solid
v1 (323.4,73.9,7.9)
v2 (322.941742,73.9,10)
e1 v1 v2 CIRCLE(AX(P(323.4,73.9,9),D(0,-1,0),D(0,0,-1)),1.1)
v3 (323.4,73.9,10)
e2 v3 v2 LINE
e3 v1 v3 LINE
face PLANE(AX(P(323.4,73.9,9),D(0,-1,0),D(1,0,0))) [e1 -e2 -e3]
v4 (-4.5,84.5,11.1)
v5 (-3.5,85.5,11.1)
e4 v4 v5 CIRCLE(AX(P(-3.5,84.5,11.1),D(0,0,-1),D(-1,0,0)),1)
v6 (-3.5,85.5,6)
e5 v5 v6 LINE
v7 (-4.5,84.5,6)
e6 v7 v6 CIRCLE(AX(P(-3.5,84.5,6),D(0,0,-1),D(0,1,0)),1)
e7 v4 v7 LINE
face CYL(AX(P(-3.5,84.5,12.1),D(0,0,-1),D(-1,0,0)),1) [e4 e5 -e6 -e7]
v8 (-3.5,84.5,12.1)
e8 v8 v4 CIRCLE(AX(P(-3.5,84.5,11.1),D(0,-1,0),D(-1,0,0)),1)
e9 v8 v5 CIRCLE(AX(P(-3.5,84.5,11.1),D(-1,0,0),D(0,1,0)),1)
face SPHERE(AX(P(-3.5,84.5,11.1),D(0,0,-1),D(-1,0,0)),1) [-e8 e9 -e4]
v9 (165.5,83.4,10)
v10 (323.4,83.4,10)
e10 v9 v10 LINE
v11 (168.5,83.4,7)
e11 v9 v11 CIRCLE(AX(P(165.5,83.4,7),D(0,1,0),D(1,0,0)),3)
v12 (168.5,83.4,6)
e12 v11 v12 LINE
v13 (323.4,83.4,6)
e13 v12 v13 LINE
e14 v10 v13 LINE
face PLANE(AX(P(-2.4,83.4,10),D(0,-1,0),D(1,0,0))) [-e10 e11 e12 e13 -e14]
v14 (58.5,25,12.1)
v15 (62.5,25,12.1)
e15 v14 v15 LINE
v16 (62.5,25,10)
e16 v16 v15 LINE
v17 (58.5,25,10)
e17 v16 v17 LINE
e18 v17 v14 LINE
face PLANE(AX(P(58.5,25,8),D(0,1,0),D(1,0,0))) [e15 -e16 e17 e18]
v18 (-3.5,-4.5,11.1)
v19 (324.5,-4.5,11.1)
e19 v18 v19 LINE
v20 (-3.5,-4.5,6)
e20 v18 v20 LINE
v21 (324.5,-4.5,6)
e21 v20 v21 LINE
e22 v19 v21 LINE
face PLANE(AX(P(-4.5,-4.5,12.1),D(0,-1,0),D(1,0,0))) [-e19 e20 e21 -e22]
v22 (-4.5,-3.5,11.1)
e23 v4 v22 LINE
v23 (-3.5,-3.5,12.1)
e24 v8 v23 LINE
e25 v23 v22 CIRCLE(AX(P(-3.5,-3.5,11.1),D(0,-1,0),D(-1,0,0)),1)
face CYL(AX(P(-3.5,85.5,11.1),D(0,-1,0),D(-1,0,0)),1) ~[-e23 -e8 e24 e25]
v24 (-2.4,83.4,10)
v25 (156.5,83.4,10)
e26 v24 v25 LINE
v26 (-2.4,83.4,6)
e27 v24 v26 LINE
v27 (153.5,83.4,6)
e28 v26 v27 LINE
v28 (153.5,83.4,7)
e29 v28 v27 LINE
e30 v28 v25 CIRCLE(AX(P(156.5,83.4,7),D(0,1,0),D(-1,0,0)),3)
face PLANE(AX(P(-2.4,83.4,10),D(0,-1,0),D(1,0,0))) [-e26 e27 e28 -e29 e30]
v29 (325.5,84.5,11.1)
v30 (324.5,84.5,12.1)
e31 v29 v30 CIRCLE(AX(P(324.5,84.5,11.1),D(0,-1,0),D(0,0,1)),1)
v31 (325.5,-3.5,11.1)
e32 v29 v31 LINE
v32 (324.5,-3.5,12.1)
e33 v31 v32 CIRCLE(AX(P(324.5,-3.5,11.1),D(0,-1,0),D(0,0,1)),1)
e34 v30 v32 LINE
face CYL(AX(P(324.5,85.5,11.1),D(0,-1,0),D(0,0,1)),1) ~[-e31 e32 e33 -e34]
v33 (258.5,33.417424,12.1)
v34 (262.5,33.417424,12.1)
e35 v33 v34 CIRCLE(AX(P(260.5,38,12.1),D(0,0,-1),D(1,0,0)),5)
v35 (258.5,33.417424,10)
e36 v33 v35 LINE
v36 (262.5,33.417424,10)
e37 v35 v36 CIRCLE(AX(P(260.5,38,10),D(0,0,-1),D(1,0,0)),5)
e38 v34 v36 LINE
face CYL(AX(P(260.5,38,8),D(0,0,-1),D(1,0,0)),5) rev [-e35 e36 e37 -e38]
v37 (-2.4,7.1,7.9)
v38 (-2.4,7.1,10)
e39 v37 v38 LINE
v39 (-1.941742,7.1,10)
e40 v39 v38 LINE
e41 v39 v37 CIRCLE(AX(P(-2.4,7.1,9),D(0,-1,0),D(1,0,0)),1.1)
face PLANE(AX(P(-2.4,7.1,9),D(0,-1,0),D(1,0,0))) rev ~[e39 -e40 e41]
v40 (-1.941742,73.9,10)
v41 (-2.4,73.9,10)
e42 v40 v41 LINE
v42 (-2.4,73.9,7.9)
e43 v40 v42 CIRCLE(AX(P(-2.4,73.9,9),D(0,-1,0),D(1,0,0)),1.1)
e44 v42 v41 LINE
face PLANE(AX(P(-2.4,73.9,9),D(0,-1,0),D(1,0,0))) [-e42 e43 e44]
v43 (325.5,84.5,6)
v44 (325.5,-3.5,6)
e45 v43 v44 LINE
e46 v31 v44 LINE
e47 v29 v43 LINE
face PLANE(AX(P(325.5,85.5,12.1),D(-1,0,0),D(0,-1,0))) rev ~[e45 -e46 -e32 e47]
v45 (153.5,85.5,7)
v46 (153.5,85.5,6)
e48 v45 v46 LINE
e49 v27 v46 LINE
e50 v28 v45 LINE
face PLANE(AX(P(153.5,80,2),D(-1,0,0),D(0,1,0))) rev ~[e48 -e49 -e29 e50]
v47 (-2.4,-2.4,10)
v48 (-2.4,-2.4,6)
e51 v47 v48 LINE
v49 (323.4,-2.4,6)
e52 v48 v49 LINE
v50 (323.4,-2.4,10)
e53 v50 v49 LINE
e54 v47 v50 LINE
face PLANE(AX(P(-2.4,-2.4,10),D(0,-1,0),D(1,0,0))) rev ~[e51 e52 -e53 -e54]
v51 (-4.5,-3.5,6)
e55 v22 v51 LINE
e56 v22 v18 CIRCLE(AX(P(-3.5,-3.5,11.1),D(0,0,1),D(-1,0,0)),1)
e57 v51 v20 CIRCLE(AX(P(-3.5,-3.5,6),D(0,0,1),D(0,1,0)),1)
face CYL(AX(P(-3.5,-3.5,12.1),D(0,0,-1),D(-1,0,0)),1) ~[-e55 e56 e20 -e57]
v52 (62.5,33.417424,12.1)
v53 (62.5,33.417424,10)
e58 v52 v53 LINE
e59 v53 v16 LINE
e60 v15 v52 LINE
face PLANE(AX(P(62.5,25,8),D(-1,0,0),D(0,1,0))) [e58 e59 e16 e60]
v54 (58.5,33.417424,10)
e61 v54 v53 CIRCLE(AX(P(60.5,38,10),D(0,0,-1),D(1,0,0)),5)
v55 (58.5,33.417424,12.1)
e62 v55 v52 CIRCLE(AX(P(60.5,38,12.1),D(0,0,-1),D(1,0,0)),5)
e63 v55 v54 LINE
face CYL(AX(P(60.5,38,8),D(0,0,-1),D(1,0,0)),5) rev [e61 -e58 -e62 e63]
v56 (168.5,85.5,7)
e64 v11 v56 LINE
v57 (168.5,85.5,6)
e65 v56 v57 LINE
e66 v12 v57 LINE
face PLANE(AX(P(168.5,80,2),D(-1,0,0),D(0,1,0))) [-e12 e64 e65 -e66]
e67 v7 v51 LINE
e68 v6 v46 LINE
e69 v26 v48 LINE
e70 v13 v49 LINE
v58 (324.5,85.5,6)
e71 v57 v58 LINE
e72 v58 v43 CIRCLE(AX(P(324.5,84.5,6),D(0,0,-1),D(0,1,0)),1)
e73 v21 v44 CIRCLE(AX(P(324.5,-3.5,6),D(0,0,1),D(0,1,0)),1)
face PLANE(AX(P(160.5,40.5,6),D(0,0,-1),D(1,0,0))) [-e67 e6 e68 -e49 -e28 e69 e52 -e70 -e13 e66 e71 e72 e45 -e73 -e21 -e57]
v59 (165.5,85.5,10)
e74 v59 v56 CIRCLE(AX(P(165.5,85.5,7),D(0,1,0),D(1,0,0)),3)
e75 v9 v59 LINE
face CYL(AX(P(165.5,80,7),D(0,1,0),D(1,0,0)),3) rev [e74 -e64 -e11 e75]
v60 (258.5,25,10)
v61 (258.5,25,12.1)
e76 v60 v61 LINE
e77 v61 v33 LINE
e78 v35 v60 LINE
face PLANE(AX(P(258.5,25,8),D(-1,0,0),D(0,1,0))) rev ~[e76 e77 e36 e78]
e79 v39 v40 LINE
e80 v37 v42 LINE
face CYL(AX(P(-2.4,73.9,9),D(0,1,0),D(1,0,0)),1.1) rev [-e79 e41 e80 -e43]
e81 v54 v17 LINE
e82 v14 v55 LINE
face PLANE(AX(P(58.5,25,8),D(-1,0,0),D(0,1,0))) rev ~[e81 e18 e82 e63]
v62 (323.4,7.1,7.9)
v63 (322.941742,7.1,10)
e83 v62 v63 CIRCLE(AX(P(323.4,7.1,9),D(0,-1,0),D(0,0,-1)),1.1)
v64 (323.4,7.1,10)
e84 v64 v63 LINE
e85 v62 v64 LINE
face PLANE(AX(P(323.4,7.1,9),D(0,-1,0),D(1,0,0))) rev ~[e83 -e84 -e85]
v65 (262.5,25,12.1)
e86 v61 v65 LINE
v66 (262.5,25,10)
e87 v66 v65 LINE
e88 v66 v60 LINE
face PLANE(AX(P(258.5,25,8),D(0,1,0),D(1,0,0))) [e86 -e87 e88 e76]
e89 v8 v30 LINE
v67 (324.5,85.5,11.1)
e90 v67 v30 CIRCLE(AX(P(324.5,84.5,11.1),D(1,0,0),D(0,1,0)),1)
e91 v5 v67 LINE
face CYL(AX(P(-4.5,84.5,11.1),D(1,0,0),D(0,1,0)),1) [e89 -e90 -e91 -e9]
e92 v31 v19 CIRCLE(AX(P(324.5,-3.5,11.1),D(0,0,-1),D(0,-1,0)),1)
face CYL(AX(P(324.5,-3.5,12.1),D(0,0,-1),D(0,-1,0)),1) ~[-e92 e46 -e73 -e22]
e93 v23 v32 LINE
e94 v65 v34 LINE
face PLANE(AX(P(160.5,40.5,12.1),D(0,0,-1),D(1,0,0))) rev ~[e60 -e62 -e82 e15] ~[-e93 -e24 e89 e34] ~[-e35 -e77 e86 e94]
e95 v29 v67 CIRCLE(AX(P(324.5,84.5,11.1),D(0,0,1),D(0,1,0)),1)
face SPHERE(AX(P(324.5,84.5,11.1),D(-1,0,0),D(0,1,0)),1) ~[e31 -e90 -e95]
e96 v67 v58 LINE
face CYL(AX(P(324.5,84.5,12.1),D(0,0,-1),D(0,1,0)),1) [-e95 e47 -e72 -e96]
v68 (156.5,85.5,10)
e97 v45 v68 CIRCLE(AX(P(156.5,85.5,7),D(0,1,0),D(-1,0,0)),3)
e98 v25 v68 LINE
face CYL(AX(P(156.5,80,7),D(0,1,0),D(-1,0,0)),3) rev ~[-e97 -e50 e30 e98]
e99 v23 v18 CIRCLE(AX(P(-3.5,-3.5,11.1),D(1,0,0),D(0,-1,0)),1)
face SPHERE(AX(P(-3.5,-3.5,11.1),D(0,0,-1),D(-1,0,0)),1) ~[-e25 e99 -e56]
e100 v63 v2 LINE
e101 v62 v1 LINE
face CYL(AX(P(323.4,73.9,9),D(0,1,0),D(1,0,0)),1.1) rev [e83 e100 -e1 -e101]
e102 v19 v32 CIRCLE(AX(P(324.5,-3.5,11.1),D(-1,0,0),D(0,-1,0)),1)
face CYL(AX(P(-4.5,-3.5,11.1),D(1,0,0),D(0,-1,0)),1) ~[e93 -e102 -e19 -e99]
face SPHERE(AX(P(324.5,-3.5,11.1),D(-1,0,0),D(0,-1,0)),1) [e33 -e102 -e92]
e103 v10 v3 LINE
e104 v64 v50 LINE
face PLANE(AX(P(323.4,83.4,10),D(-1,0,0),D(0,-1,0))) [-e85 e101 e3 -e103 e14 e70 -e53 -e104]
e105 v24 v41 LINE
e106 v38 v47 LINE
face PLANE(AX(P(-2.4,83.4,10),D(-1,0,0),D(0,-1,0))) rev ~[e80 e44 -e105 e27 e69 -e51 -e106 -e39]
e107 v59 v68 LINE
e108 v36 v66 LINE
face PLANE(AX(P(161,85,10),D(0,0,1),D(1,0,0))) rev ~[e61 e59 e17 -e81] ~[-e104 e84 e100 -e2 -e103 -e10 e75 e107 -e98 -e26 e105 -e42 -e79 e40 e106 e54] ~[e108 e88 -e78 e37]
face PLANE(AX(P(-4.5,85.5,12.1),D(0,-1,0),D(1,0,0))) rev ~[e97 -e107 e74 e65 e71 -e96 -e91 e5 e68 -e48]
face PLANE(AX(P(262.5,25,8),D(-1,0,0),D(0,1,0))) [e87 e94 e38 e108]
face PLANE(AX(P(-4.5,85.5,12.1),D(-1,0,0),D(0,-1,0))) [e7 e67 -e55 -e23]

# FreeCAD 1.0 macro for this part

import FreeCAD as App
import Part
import Sketcher
from FreeCAD import Vector


def edges_at(feature, points):
    """Names of the edges that pass closest to the given points."""
    edges = feature.Shape.Edges
    near = lambda p: min(range(len(edges)), key=lambda i: edges[i].distToShape(Part.Vertex(*p))[0])
    return sorted({f"Edge{near(p) + 1}" for p in points})


def add_polygon(sketch, points):
    """Adds a closed chain of lines whose ends are joined by coincident constraints."""
    first, n = sketch.GeometryCount, len(points)
    for a, b in zip(points, points[1:] + points[:1]):
        sketch.addGeometry(Part.LineSegment(App.Vector(*a, 0), App.Vector(*b, 0)), False)
    for i in range(n):
        sketch.addConstraint(Sketcher.Constraint("Coincident", first + i, 2, first + (i + 1) % n, 1))

doc = App.newDocument("Part")
params = doc.addObject("Spreadsheet::Sheet", "Params")
for row, (alias, value) in enumerate([
    ("sketch1_width", "4 mm"),
    ("sketch1_height", "10 mm"),
    ("pad1_length", "10 mm"),
    ("sketch2_diameter", "10 mm"),
    ("pad2_length", "10 mm"),
    ("sketch3_width", "4 mm"),
    ("sketch3_height", "10 mm"),
    ("pad3_length", "10 mm"),
    ("sketch4_diameter", "10 mm"),
    ("pad4_length", "10 mm"),
    ("sketch5_width", "15 mm"),
    ("sketch5_height", "10 mm"),
    ("pad5_length", "8 mm"),
    ("fillet_radius", "3 mm"),
    ("sketch6_diameter", "2.2 mm"),
    ("pad6_length", "66.8 mm"),
    ("sketch7_diameter", "2.2 mm"),
    ("pad7_length", "66.8 mm"),
    ("sketch8_width", "325.8 mm"),
    ("sketch8_height", "85.8 mm"),
    ("pad8_length", "4 mm"),
    ("sketch9_width", "330 mm"),
    ("sketch9_height", "90 mm"),
    ("pad9_length", "6.1 mm"),
    ("fillet2_radius", "1 mm"),
], start=1):
    params.set(f"A{row}", alias)
    params.set(f"B{row}", "=" + value)
    params.setAlias(f"B{row}", alias)

body = doc.addObject("PartDesign::Body", "Body")

sketch1 = body.newObject("Sketcher::SketchObject", "Sketch")
sketch1.AttachmentSupport = (doc.getObject("XY_Plane"), [""])
sketch1.MapMode = "FlatFace"
add_polygon(sketch1, [(0, 10), (0, 0), (4, 0), (4, 10)])
sketch1.addConstraint([
    Sketcher.Constraint("Vertical", 0),
    Sketcher.Constraint("Horizontal", 1),
    Sketcher.Constraint("Vertical", 2),
    Sketcher.Constraint("Horizontal", 3),
    Sketcher.Constraint("Coincident", 0, 2, -1, 1),
    Sketcher.Constraint("DistanceX", 1, 1, 1, 2, 4.0),
    Sketcher.Constraint("DistanceY", 0, 2, 0, 1, 10.0),
])
sketch1.setExpression("Constraints[9]", "Params.sketch1_width")
sketch1.setExpression("Constraints[10]", "Params.sketch1_height")
pad1 = body.newObject("PartDesign::Pad", "Pad")
pad1.Profile = sketch1
pad1.setExpression("Length", "Params.pad1_length")
body2 = doc.addObject("PartDesign::Body", "Body001")

sketch2 = body2.newObject("Sketcher::SketchObject", "Sketch001")
sketch2.AttachmentSupport = (doc.getObject("XY_Plane001"), [""])
sketch2.MapMode = "FlatFace"
sketch2.addGeometry(Part.Circle(Vector(2, 13, 0), Vector(0, 0, 1), 5), False)
sketch2.addConstraint([
    Sketcher.Constraint("Diameter", 0, 10.0),
    Sketcher.Constraint("DistanceX", -1, 1, 0, 3, 2.0),
    Sketcher.Constraint("DistanceY", -1, 1, 0, 3, 13.0),
])
sketch2.setExpression("Constraints[0]", "Params.sketch2_diameter")
pad2 = body2.newObject("PartDesign::Pad", "Pad001")
pad2.Profile = sketch2
pad2.setExpression("Length", "Params.pad2_length")
doc.recompute()

boolean = body2.newObject("PartDesign::Boolean", "Boolean")
boolean.Type = "Fuse"
boolean.addObjects([body])
body3 = doc.addObject("PartDesign::Body", "Body002")
doc.recompute()

body2.Placement = App.Placement(Vector(258.5, 25, 8), App.Rotation(Vector(0, 0, 1), 0))
boolean2 = body3.newObject("PartDesign::Boolean", "Boolean001")
boolean2.Type = "Fuse"
boolean2.addObjects([body2])
body4 = doc.addObject("PartDesign::Body", "Body003")

sketch3 = body4.newObject("Sketcher::SketchObject", "Sketch002")
sketch3.AttachmentSupport = (doc.getObject("XY_Plane003"), [""])
sketch3.MapMode = "FlatFace"
add_polygon(sketch3, [(0, 10), (0, 0), (4, 0), (4, 10)])
sketch3.addConstraint([
    Sketcher.Constraint("Vertical", 0),
    Sketcher.Constraint("Horizontal", 1),
    Sketcher.Constraint("Vertical", 2),
    Sketcher.Constraint("Horizontal", 3),
    Sketcher.Constraint("Coincident", 0, 2, -1, 1),
    Sketcher.Constraint("DistanceX", 1, 1, 1, 2, 4.0),
    Sketcher.Constraint("DistanceY", 0, 2, 0, 1, 10.0),
])
sketch3.setExpression("Constraints[9]", "Params.sketch3_width")
sketch3.setExpression("Constraints[10]", "Params.sketch3_height")
pad3 = body4.newObject("PartDesign::Pad", "Pad002")
pad3.Profile = sketch3
pad3.setExpression("Length", "Params.pad3_length")
body5 = doc.addObject("PartDesign::Body", "Body004")

sketch4 = body5.newObject("Sketcher::SketchObject", "Sketch003")
sketch4.AttachmentSupport = (doc.getObject("XY_Plane004"), [""])
sketch4.MapMode = "FlatFace"
sketch4.addGeometry(Part.Circle(Vector(2, 13, 0), Vector(0, 0, 1), 5), False)
sketch4.addConstraint([
    Sketcher.Constraint("Diameter", 0, 10.0),
    Sketcher.Constraint("DistanceX", -1, 1, 0, 3, 2.0),
    Sketcher.Constraint("DistanceY", -1, 1, 0, 3, 13.0),
])
sketch4.setExpression("Constraints[0]", "Params.sketch4_diameter")
pad4 = body5.newObject("PartDesign::Pad", "Pad003")
pad4.Profile = sketch4
pad4.setExpression("Length", "Params.pad4_length")
doc.recompute()

boolean3 = body5.newObject("PartDesign::Boolean", "Boolean002")
boolean3.Type = "Fuse"
boolean3.addObjects([body4])
body6 = doc.addObject("PartDesign::Body", "Body005")
doc.recompute()

body5.Placement = App.Placement(Vector(58.5, 25, 8), App.Rotation(Vector(0, 0, 1), 0))
boolean4 = body6.newObject("PartDesign::Boolean", "Boolean003")
boolean4.Type = "Fuse"
boolean4.addObjects([body5])
body7 = doc.addObject("PartDesign::Body", "Body006")

sketch5 = body7.newObject("Sketcher::SketchObject", "Sketch004")
sketch5.AttachmentSupport = (doc.getObject("XY_Plane006"), [""])
sketch5.MapMode = "FlatFace"
sketch5.AttachmentOffset = App.Placement(Vector(0, 0, 2), App.Rotation())
add_polygon(sketch5, [(154, 90), (154, 80), (168, 80), (168, 90)])
sketch5.addConstraint([
    Sketcher.Constraint("Vertical", 0),
    Sketcher.Constraint("Horizontal", 1),
    Sketcher.Constraint("Vertical", 2),
    Sketcher.Constraint("Horizontal", 3),
    Sketcher.Constraint("DistanceX", 1, 1, 1, 2, 15.0),
    Sketcher.Constraint("DistanceY", 0, 2, 0, 1, 10.0),
    Sketcher.Constraint("DistanceY", -1, 1, 0, 2, 80.0),
    Sketcher.Constraint("DistanceX", -1, 1, 0, 2, 153.5),
])
sketch5.setExpression("Constraints[8]", "Params.sketch5_width")
sketch5.setExpression("Constraints[9]", "Params.sketch5_height")
pad5 = body7.newObject("PartDesign::Pad", "Pad004")
pad5.Profile = sketch5
pad5.setExpression("Length", "Params.pad5_length")
doc.recompute()

fillet = body7.newObject("PartDesign::Fillet", "Fillet")
fillet.Base = (pad5, edges_at(pad5, [
    (153.5, 85, 10),
    (153.5, 85, 2),
    (168.5, 85, 10),
    (168.5, 85, 2),
]))
fillet.setExpression("Radius", "Params.fillet_radius")
body8 = doc.addObject("PartDesign::Body", "Body007")

sketch6 = body8.newObject("Sketcher::SketchObject", "Sketch005")
sketch6.AttachmentSupport = (doc.getObject("XZ_Plane007"), [""])
sketch6.MapMode = "FlatFace"
sketch6.AttachmentOffset = App.Placement(Vector(0, 0, -7.1), App.Rotation())
sketch6.addGeometry(Part.Circle(Vector(-2.4, 1, 0), Vector(0, 0, 1), 1.1), False)
sketch6.addConstraint([
    Sketcher.Constraint("Diameter", 0, 2.2),
    Sketcher.Constraint("DistanceY", -1, 1, 0, 3, 1.0),
    Sketcher.Constraint("DistanceX", 0, 3, -1, 1, 2.4),
])
sketch6.setExpression("Constraints[0]", "Params.sketch6_diameter")
pad6 = body8.newObject("PartDesign::Pad", "Pad005")
pad6.Profile = sketch6
pad6.setExpression("Length", "Params.pad6_length")
pad6.Reversed = True
body9 = doc.addObject("PartDesign::Body", "Body008")

sketch7 = body9.newObject("Sketcher::SketchObject", "Sketch006")
sketch7.AttachmentSupport = (doc.getObject("XZ_Plane008"), [""])
sketch7.MapMode = "FlatFace"
sketch7.AttachmentOffset = App.Placement(Vector(0, 0, -7.1), App.Rotation())
sketch7.addGeometry(Part.Circle(Vector(323.4, 1, 0), Vector(0, 0, 1), 1.1), False)
sketch7.addConstraint([
    Sketcher.Constraint("Diameter", 0, 2.2),
    Sketcher.Constraint("DistanceY", -1, 1, 0, 3, 1.0),
    Sketcher.Constraint("DistanceX", -1, 1, 0, 3, 323.4),
])
sketch7.setExpression("Constraints[0]", "Params.sketch7_diameter")
pad7 = body9.newObject("PartDesign::Pad", "Pad006")
pad7.Profile = sketch7
pad7.setExpression("Length", "Params.pad7_length")
pad7.Reversed = True
body10 = doc.addObject("PartDesign::Body", "Body009")

sketch8 = body10.newObject("Sketcher::SketchObject", "Sketch007")
sketch8.AttachmentSupport = (doc.getObject("XY_Plane009"), [""])
sketch8.MapMode = "FlatFace"
add_polygon(sketch8, [(-2, 83), (-2, -2), (323, -2), (323, 83)])
sketch8.addConstraint([
    Sketcher.Constraint("Vertical", 0),
    Sketcher.Constraint("Horizontal", 1),
    Sketcher.Constraint("Vertical", 2),
    Sketcher.Constraint("Horizontal", 3),
    Sketcher.Constraint("DistanceX", 1, 1, 1, 2, 325.8),
    Sketcher.Constraint("DistanceY", 0, 2, 0, 1, 85.8),
    Sketcher.Constraint("DistanceX", 0, 2, -1, 1, 2.4),
    Sketcher.Constraint("DistanceY", 0, 2, -1, 1, 2.4),
])
sketch8.setExpression("Constraints[8]", "Params.sketch8_width")
sketch8.setExpression("Constraints[9]", "Params.sketch8_height")
pad8 = body10.newObject("PartDesign::Pad", "Pad007")
pad8.Profile = sketch8
pad8.setExpression("Length", "Params.pad8_length")
body11 = doc.addObject("PartDesign::Body", "Body010")

sketch9 = body11.newObject("Sketcher::SketchObject", "Sketch008")
sketch9.AttachmentSupport = (doc.getObject("XY_Plane010"), [""])
sketch9.MapMode = "FlatFace"
sketch9.AttachmentOffset = App.Placement(Vector(0, 0, -2.1), App.Rotation())
add_polygon(sketch9, [(-4, 86), (-4, -4), (326, -4), (326, 86)])
sketch9.addConstraint([
    Sketcher.Constraint("Vertical", 0),
    Sketcher.Constraint("Horizontal", 1),
    Sketcher.Constraint("Vertical", 2),
    Sketcher.Constraint("Horizontal", 3),
    Sketcher.Constraint("DistanceX", 1, 1, 1, 2, 330.0),
    Sketcher.Constraint("DistanceY", 0, 2, 0, 1, 90.0),
    Sketcher.Constraint("DistanceX", 0, 2, -1, 1, 4.5),
    Sketcher.Constraint("DistanceY", 0, 2, -1, 1, 4.5),
])
sketch9.setExpression("Constraints[8]", "Params.sketch9_width")
sketch9.setExpression("Constraints[9]", "Params.sketch9_height")
pad9 = body11.newObject("PartDesign::Pad", "Pad008")
pad9.Profile = sketch9
pad9.setExpression("Length", "Params.pad9_length")
doc.recompute()

boolean5 = body11.newObject("PartDesign::Boolean", "Boolean004")
boolean5.Type = "Cut"
boolean5.addObjects([body10])
doc.recompute()

boolean6 = body11.newObject("PartDesign::Boolean", "Boolean005")
boolean6.Type = "Cut"
boolean6.addObjects([body9])
doc.recompute()

boolean7 = body11.newObject("PartDesign::Boolean", "Boolean006")
boolean7.Type = "Cut"
boolean7.addObjects([body8])
doc.recompute()

fillet2 = body11.newObject("PartDesign::Fillet", "Fillet001")
fillet2.Base = (boolean7, edges_at(boolean7, [
    (-4.5, -4.5, 0.95),
    (-4.5, 85.5, 0.95),
    (-4.5, 40.5, -2.1),
    (160.5, -4.5, -2.1),
    (325.5, -4.5, 0.95),
    (160.5, 85.5, -2.1),
    (325.5, 85.5, 0.95),
    (325.5, 40.5, -2.1),
]))
fillet2.setExpression("Radius", "Params.fillet2_radius")
body12 = doc.addObject("PartDesign::Body", "Body011")
doc.recompute()

body11.Placement = App.Placement(Vector(0, 81, 10), App.Rotation(Vector(1, 0, 0), 180))
boolean8 = body12.newObject("PartDesign::Boolean", "Boolean007")
boolean8.Type = "Fuse"
boolean8.addObjects([body11])
doc.recompute()

boolean9 = body12.newObject("PartDesign::Boolean", "Boolean008")
boolean9.Type = "Cut"
boolean9.addObjects([body7])
doc.recompute()

boolean10 = body12.newObject("PartDesign::Boolean", "Boolean009")
boolean10.Type = "Cut"
boolean10.addObjects([body6])
doc.recompute()

boolean11 = body12.newObject("PartDesign::Boolean", "Boolean010")
boolean11.Type = "Cut"
boolean11.addObjects([body3])

doc.recompute()
